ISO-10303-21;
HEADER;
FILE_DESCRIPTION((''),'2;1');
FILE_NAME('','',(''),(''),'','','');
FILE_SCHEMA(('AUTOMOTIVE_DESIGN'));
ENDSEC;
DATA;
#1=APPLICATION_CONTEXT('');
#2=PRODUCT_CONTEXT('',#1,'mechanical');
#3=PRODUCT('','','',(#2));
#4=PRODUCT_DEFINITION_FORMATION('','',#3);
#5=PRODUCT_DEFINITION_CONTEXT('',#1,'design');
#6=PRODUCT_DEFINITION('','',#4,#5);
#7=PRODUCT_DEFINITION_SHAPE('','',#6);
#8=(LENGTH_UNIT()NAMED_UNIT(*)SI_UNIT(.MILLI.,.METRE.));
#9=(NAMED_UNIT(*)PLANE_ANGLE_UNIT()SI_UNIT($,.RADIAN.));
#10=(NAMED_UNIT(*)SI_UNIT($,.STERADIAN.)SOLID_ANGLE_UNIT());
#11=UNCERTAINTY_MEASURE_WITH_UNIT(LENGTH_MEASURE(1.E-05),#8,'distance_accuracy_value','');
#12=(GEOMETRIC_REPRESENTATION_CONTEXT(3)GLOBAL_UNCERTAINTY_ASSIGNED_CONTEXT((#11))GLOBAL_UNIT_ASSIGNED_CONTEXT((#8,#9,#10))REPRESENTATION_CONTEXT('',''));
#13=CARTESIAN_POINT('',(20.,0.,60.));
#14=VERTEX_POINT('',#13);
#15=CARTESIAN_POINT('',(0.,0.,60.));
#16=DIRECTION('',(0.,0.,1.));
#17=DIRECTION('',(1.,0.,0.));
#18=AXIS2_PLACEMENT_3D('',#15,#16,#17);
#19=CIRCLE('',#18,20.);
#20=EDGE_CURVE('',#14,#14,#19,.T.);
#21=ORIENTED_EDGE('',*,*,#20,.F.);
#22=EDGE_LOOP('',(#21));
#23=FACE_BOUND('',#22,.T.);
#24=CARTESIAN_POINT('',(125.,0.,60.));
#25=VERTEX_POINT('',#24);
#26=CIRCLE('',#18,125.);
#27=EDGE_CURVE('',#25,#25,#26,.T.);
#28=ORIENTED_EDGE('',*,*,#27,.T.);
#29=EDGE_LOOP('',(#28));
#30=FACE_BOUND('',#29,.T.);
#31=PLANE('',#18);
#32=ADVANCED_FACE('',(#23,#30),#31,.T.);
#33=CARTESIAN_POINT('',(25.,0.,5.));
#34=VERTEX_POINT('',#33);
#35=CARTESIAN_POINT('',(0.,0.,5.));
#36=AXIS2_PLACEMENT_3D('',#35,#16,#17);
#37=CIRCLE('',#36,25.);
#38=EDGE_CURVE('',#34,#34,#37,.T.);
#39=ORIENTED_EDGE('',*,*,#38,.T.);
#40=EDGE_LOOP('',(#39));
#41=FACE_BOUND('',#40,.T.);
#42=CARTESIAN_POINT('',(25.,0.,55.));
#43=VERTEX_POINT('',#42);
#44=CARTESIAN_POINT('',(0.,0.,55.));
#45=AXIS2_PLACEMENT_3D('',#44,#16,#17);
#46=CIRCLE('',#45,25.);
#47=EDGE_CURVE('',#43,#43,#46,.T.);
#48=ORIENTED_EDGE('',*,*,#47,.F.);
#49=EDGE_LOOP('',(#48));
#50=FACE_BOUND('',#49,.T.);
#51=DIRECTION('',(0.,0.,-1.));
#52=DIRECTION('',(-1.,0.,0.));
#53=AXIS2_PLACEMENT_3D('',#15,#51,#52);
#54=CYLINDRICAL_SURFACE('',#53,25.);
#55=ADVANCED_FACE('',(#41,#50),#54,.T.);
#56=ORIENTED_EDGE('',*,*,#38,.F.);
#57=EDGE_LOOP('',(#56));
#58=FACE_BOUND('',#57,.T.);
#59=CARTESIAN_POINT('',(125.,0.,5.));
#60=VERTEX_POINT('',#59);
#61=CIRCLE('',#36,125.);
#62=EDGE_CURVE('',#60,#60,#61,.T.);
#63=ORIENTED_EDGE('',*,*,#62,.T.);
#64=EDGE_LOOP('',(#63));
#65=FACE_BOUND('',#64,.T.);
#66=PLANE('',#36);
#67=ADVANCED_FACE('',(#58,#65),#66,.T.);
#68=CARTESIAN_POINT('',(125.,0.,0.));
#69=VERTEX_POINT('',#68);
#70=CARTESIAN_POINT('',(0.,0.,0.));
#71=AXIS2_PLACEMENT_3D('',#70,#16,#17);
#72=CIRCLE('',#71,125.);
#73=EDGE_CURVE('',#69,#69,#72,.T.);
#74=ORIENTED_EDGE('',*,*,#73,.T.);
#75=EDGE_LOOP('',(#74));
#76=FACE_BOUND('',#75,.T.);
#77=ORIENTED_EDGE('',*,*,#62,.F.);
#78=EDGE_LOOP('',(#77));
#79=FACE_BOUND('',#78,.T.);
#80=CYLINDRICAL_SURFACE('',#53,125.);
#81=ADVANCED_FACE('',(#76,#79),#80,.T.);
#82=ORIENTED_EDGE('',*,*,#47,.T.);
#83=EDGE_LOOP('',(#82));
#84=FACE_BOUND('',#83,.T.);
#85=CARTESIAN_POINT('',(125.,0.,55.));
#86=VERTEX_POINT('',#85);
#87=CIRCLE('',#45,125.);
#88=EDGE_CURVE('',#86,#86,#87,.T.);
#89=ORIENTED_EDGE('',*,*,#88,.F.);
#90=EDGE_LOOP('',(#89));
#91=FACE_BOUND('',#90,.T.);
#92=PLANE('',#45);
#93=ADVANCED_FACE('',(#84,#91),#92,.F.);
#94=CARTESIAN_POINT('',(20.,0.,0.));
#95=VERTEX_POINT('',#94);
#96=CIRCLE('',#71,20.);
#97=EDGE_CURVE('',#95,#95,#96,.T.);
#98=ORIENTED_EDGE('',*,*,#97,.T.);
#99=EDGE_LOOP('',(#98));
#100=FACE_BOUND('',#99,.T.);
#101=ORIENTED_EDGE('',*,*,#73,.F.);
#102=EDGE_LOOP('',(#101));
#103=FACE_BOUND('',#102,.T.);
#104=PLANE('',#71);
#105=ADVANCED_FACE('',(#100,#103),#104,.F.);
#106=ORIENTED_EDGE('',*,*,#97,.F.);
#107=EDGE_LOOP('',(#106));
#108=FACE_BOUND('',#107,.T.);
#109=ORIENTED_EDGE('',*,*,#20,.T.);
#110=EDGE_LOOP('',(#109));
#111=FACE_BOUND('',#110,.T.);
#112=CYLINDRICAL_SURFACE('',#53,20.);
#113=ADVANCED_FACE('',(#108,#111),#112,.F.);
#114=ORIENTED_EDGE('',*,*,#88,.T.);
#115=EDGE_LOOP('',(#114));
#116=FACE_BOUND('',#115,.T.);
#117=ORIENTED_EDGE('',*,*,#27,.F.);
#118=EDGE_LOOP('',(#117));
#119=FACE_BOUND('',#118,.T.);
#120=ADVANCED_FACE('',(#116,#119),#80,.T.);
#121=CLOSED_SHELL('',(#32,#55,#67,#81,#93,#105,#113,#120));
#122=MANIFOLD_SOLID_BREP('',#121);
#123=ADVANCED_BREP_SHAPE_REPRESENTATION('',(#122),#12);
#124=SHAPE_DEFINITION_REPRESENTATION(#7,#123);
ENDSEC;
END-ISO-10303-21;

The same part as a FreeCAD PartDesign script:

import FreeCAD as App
import Part
import Sketcher
Q = App.Units.Quantity


def faces_at(feature, points):
    """Names of the faces that lie closest to the given points."""
    faces = feature.Shape.Faces
    near = lambda p: min(range(len(faces)), key=lambda i: faces[i].distToShape(Part.Vertex(*p))[0])
    return sorted({f"Face{near(p) + 1}" for p in points})

doc = App.newDocument("Part")
params = doc.addObject("Spreadsheet::Sheet", "Params")
for row, (alias, value) in enumerate([
    ("sketch1_diameter", "250 mm"),
    ("sketch1_diameter2", "40 mm"),
    ("pad1_length", "60 mm"),
    ("thickness_wall", "5 mm"),
], start=1):
    params.set(f"A{row}", alias)
    params.set(f"B{row}", "=" + value)
    params.setAlias(f"B{row}", alias)

body = doc.addObject("PartDesign::Body", "Body")

# Sketch on XY plane
sketch1 = doc.addObject("Sketcher::SketchObject", "Sketch")
body.addObject(sketch1)
sketch1.AttachmentSupport = (doc.XY_Plane, [""])
sketch1.MapMode = "FlatFace"
sketch1.addGeometry(Part.Circle(App.Vector(0, 0, 0), App.Vector(0, 0, 1), 125), False)
sketch1.addGeometry(Part.Circle(App.Vector(0, 0, 0), App.Vector(0, 0, 1), 20), False)
sketch1.addConstraint(Sketcher.Constraint("Coincident", 0, 3, -1, 1))
sketch1.addConstraint(Sketcher.Constraint("Coincident", 1, 3, -1, 1))
sketch1.addConstraint(Sketcher.Constraint("Diameter", 0, Q("250 mm")))
sketch1.addConstraint(Sketcher.Constraint("Diameter", 1, Q("40 mm")))
sketch1.setExpression("Constraints[2]", "Params.sketch1_diameter")
sketch1.setExpression("Constraints[3]", "Params.sketch1_diameter2")
pad1 = doc.addObject("PartDesign::Pad", "Pad")
body.addObject(pad1)
pad1.Profile = sketch1
pad1.setExpression("Length", "Params.pad1_length")
doc.recompute()

thickness = doc.addObject("PartDesign::Thickness", "Thickness")
body.addObject(thickness)
thickness.Base = (pad1, faces_at(pad1, [(-125, 0, 30)]))
thickness.setExpression("Value", "Params.thickness_wall")
thickness.Reversed = True
thickness.Join = "Intersection"

doc.recompute()
